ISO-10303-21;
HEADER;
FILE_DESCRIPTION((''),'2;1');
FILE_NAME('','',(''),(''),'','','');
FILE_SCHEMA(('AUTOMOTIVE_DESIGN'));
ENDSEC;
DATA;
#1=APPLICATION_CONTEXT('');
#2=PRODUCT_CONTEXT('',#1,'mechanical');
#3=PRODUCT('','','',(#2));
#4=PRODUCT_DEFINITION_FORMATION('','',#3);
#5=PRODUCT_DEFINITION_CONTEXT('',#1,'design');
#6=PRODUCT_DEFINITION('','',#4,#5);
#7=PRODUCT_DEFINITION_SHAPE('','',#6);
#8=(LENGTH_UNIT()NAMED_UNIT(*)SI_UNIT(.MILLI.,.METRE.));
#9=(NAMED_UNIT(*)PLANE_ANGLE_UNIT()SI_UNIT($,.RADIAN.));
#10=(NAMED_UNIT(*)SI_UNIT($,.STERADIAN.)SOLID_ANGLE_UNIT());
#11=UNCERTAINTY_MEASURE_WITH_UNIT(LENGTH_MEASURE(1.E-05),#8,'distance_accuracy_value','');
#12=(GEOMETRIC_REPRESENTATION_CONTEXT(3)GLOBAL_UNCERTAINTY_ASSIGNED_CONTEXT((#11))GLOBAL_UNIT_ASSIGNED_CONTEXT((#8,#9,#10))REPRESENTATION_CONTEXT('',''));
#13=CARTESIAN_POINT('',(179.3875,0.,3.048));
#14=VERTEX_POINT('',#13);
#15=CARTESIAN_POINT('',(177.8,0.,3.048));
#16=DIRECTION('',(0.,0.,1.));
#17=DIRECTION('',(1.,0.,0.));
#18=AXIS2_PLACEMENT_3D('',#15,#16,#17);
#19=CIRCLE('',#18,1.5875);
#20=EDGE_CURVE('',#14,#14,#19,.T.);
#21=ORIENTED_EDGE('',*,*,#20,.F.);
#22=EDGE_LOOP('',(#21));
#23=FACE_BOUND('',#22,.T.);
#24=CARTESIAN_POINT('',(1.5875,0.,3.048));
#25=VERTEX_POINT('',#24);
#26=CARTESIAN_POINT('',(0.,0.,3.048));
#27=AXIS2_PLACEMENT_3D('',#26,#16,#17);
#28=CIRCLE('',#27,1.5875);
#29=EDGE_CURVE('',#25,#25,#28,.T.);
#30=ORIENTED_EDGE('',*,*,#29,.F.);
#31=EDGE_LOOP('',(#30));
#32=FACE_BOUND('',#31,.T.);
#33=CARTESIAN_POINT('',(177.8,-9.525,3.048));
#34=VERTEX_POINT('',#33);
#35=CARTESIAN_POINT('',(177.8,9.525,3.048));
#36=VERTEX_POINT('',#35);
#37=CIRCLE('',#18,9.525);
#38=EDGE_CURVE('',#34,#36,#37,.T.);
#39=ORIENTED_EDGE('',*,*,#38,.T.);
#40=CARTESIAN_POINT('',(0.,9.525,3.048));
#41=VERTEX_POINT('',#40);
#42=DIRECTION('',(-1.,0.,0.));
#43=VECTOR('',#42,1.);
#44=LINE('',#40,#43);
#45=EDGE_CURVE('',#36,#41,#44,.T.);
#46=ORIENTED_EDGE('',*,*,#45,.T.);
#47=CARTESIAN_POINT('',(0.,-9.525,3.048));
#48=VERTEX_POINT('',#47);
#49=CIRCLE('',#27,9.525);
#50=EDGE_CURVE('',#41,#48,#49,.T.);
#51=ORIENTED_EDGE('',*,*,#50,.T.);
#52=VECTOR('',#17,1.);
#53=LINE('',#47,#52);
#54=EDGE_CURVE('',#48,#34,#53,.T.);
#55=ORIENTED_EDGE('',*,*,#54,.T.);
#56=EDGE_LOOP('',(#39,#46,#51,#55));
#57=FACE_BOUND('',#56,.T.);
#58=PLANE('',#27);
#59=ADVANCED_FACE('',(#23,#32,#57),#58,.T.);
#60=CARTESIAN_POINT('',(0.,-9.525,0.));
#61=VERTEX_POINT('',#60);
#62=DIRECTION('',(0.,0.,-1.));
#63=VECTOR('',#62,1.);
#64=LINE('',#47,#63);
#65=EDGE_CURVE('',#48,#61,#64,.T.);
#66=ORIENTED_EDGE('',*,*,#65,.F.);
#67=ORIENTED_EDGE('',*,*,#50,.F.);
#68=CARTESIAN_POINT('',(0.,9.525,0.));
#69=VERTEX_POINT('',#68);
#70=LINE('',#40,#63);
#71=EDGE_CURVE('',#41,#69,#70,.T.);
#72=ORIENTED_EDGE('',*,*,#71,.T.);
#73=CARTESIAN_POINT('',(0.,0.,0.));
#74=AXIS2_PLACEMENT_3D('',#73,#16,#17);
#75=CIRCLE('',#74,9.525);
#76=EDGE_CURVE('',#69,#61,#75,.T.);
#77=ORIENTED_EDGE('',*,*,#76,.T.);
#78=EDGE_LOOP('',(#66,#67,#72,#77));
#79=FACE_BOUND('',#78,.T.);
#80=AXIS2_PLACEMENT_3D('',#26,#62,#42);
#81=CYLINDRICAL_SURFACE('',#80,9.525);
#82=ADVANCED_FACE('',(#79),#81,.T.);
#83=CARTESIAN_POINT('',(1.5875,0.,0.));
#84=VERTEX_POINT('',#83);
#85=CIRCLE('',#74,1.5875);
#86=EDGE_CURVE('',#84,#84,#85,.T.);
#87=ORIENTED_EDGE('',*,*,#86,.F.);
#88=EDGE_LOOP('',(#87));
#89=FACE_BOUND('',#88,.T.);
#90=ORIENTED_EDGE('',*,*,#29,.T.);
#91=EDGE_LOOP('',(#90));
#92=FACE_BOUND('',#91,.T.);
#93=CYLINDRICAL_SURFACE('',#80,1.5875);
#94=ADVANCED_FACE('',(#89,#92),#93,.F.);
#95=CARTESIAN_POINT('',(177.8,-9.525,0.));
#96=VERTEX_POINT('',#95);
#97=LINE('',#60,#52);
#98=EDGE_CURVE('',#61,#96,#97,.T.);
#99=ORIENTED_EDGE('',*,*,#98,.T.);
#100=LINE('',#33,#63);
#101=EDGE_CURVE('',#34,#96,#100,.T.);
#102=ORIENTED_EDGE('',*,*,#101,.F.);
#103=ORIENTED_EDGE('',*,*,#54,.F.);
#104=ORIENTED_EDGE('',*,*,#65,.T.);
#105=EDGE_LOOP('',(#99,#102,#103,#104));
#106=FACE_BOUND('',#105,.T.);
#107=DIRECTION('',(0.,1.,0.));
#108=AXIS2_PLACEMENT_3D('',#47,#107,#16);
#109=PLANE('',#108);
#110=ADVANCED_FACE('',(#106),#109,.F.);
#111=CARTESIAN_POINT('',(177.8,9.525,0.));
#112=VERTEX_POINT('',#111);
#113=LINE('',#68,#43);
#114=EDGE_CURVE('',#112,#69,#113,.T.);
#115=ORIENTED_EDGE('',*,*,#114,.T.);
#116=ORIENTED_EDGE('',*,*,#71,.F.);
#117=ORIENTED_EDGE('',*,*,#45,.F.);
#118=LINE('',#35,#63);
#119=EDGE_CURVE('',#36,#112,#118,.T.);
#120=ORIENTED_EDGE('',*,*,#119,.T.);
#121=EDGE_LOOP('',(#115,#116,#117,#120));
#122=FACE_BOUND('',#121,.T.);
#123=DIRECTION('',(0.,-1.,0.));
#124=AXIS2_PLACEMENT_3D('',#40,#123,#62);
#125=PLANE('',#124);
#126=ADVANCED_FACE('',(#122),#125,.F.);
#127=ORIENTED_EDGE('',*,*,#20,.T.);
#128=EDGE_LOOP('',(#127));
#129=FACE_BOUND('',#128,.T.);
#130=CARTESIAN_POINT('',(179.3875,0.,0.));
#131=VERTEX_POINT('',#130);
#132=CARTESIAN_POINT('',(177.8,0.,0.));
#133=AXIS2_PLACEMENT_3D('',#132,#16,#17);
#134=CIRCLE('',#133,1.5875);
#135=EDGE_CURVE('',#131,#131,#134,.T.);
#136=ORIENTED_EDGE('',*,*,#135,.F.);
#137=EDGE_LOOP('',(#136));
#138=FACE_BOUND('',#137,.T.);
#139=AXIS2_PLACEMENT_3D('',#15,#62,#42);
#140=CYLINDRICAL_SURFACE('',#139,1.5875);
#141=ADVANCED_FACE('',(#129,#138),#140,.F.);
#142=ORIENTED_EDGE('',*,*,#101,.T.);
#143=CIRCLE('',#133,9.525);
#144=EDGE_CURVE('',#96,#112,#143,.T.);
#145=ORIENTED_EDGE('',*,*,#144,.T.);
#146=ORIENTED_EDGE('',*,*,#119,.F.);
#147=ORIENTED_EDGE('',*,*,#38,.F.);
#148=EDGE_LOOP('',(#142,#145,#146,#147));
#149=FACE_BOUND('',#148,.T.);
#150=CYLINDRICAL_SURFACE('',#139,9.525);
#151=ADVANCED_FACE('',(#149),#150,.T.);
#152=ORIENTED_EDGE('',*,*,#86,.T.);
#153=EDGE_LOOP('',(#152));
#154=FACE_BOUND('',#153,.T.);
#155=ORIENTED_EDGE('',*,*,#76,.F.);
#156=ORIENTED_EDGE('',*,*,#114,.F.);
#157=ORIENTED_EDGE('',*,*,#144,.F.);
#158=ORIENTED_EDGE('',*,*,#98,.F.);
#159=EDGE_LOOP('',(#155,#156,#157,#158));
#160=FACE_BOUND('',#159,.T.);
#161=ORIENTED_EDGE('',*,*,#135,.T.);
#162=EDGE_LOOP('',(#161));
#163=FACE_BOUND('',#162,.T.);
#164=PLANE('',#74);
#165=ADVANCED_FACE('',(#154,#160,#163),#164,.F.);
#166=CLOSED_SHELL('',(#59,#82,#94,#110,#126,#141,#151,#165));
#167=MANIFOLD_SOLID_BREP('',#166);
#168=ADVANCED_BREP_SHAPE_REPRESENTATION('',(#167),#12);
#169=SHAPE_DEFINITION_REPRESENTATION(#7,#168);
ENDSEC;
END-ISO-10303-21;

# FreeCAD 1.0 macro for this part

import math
import FreeCAD as App
import Part
import Sketcher

V = App.Vector
Q = App.Units.Quantity

doc = App.newDocument("Part")
body = doc.addObject("PartDesign::Body", "Body")

sketch1 = doc.addObject("Sketcher::SketchObject", "Sketch")
body.addObject(sketch1)
sketch1.AttachmentSupport = (doc.XY_Plane, [""])
sketch1.MapMode = "FlatFace"
sketch1.addGeometry(Part.LineSegment(V(177.8, 9.5, 0), V(0, 9.5, 0)), False)
sketch1.addGeometry(Part.ArcOfCircle(Part.Circle(V(0, 0, 0), V(0, 0, 1), 9.5), math.radians(90), math.radians(270)), False)
sketch1.addGeometry(Part.LineSegment(V(0, -9.5, 0), V(177.8, -9.5, 0)), False)
sketch1.addGeometry(Part.ArcOfCircle(Part.Circle(V(177.8, 0, 0), V(0, 0, 1), 9.5), math.radians(-90), math.radians(90)), False)
sketch1.addGeometry(Part.Circle(V(177.8, 0, 0), V(0, 0, 1), 1.6), False)
sketch1.addGeometry(Part.Circle(V(0, 0, 0), V(0, 0, 1), 1.6), False)
sketch1.addConstraint(Sketcher.Constraint("Tangent", 0, 2, 1, 1))
sketch1.addConstraint(Sketcher.Constraint("Tangent", 1, 2, 2, 1))
sketch1.addConstraint(Sketcher.Constraint("Tangent", 2, 2, 3, 1))
sketch1.addConstraint(Sketcher.Constraint("Tangent", 3, 2, 0, 1))
sketch1.addConstraint(Sketcher.Constraint("Horizontal", 0))
sketch1.addConstraint(Sketcher.Constraint("Horizontal", 2))
sketch1.addConstraint(Sketcher.Constraint("Coincident", 1, 3, -1, 1))
sketch1.addConstraint(Sketcher.Constraint("Coincident", 5, 3, -1, 1))
sketch1.addConstraint(Sketcher.Constraint("Coincident", 4, 3, 3, 3))
sketch1.addConstraint(Sketcher.Constraint("Equal", 4, 5))
sketch1.addConstraint(Sketcher.Constraint("DistanceX", 0, 2, 0, 1, Q("7 in")))
sketch1.addConstraint(Sketcher.Constraint("Diameter", 4, Q("0.125 in")))
sketch1.addConstraint(Sketcher.Constraint("Radius", 1, Q("0.375 in")))
pad1 = doc.addObject("PartDesign::Pad", "Pad")
body.addObject(pad1)
pad1.Profile = sketch1
pad1.Length = Q("0.12 in")

doc.recompute()
